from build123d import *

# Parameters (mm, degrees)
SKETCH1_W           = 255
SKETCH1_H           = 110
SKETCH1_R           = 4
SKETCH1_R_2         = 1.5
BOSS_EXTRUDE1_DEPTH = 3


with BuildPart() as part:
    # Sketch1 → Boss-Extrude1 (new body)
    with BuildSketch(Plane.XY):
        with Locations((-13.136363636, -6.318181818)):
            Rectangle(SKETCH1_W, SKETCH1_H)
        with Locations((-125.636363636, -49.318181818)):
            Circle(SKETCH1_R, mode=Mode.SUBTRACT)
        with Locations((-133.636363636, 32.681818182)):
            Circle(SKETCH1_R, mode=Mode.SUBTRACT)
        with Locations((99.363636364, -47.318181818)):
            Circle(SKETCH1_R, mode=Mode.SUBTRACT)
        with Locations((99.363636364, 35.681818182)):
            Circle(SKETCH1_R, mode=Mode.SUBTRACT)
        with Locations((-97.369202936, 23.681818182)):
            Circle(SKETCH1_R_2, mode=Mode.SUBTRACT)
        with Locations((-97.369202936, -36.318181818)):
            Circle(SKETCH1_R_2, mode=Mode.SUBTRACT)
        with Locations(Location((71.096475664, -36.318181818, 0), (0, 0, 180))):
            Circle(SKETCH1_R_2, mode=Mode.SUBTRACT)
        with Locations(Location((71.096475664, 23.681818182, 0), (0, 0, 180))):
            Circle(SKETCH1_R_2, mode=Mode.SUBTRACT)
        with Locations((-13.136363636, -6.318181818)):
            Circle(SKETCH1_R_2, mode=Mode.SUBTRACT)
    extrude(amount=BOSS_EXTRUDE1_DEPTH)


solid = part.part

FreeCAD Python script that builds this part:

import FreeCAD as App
import Part
import Sketcher


def add_polygon(sketch, points):
    """Adds a closed chain of lines whose ends are joined by coincident constraints."""
    first, n = sketch.GeometryCount, len(points)
    for a, b in zip(points, points[1:] + points[:1]):
        sketch.addGeometry(Part.LineSegment(App.Vector(*a, 0), App.Vector(*b, 0)), False)
    for i in range(n):
        sketch.addConstraint(Sketcher.Constraint("Coincident", first + i, 2, first + (i + 1) % n, 1))

doc = App.newDocument("Part")
params = doc.addObject("Spreadsheet::Sheet", "Params")
for row, (alias, value) in enumerate([
    ("sketch1_diameter", "8 mm"),
    ("sketch1_diameter2", "3 mm"),
    ("sketch1_width", "255 mm"),
    ("sketch1_height", "110 mm"),
    ("pad1_length", "3 mm"),
], start=1):
    params.set(f"A{row}", alias)
    params.set(f"B{row}", "=" + value)
    params.setAlias(f"B{row}", alias)

body = doc.addObject("PartDesign::Body", "Body")

sketch1 = body.newObject("Sketcher::SketchObject", "Sketch")
sketch1.AttachmentSupport = (doc.getObject("XY_Plane"), [""])
sketch1.MapMode = "FlatFace"
add_polygon(sketch1, [(-140.6, 48.7), (-140.6, -61.3), (114.4, -61.3), (114.4, 48.7)])
sketch1.addGeometry(Part.Circle(App.Vector(-125.6, -49.3, 0), App.Vector(0, 0, 1), 4), False)
sketch1.addGeometry(Part.Circle(App.Vector(-97.4, -36.3, 0), App.Vector(0, 0, 1), 1.5), False)
sketch1.addGeometry(Part.Circle(App.Vector(99.4, -47.3, 0), App.Vector(0, 0, 1), 4), False)
sketch1.addGeometry(Part.Circle(App.Vector(71.1, -36.3, 0), App.Vector(0, 0, 1), 1.5), False)
sketch1.addGeometry(Part.Circle(App.Vector(-97.4, 23.7, 0), App.Vector(0, 0, 1), 1.5), False)
sketch1.addGeometry(Part.Circle(App.Vector(-133.6, 32.7, 0), App.Vector(0, 0, 1), 4), False)
sketch1.addGeometry(Part.Circle(App.Vector(-13.1, -6.3, 0), App.Vector(0, 0, 1), 1.5), False)
sketch1.addGeometry(Part.Circle(App.Vector(71.1, 23.7, 0), App.Vector(0, 0, 1), 1.5), False)
sketch1.addGeometry(Part.Circle(App.Vector(99.4, 35.7, 0), App.Vector(0, 0, 1), 4), False)
sketch1.addConstraint([
    Sketcher.Constraint("Vertical", 0),
    Sketcher.Constraint("Horizontal", 1),
    Sketcher.Constraint("Vertical", 2),
    Sketcher.Constraint("Horizontal", 3),
    Sketcher.Constraint("Equal", 4, 6),
    Sketcher.Constraint("Equal", 5, 7),
    Sketcher.Constraint("Equal", 7, 8),
    Sketcher.Constraint("Equal", 6, 9),
    Sketcher.Constraint("Equal", 8, 10),
    Sketcher.Constraint("Equal", 10, 11),
    Sketcher.Constraint("Equal", 9, 12),
    Sketcher.Constraint("Horizontal", 5, 3, 7, 3),
    Sketcher.Constraint("Horizontal", 8, 3, 11, 3),
    Sketcher.Constraint("Vertical", 5, 3, 8, 3),
    Sketcher.Constraint("Vertical", 7, 3, 11, 3),
    Sketcher.Constraint("Vertical", 6, 3, 12, 3),
    Sketcher.Constraint("Diameter", 4, 8.0),
    Sketcher.Constraint("Diameter", 5, 3.0),
    Sketcher.Constraint("DistanceX", 1, 1, 1, 2, 255.0),
    Sketcher.Constraint("DistanceY", 0, 2, 0, 1, 110.0),
    Sketcher.Constraint("DistanceY", 4, 3, 5, 3, 13.0),
    Sketcher.Constraint("DistanceY", 6, 3, 5, 3, 11.0),
    Sketcher.Constraint("DistanceX", 4, 3, 6, 3, 225.0),
    Sketcher.Constraint("DistanceY", 5, 3, 8, 3, 60.0),
    Sketcher.Constraint("DistanceY", 8, 3, 9, 3, 9.0),
    Sketcher.Constraint("DistanceX", 9, 3, 4, 3, 8.0),
    Sketcher.Constraint("DistanceY", 5, 3, 10, 3, 30.0),
    Sketcher.Constraint("DistanceY", 11, 3, 12, 3, 12.0),
    Sketcher.Constraint("DistanceX", 0, 2, 4, 3, 15.0),
    Sketcher.Constraint("DistanceY", 0, 2, 4, 3, 12.0),
    Sketcher.Constraint("DistanceX", 10, 3, 6, 3, 112.5),
    Sketcher.Constraint("DistanceY", 4, 3, -1, 1, 49.318182),
    Sketcher.Constraint("DistanceX", 4, 3, 5, 3, 28.267161),
    Sketcher.Constraint("DistanceX", 7, 3, 6, 3, 28.267161),
    Sketcher.Constraint("DistanceX", 4, 3, -1, 1, 125.636364),
])
sketch1.setExpression("Constraints[20]", "Params.sketch1_diameter")
sketch1.setExpression("Constraints[21]", "Params.sketch1_diameter2")
sketch1.setExpression("Constraints[22]", "Params.sketch1_width")
sketch1.setExpression("Constraints[23]", "Params.sketch1_height")
pad1 = body.newObject("PartDesign::Pad", "Pad")
pad1.Profile = sketch1
pad1.setExpression("Length", "Params.pad1_length")

doc.recompute()
